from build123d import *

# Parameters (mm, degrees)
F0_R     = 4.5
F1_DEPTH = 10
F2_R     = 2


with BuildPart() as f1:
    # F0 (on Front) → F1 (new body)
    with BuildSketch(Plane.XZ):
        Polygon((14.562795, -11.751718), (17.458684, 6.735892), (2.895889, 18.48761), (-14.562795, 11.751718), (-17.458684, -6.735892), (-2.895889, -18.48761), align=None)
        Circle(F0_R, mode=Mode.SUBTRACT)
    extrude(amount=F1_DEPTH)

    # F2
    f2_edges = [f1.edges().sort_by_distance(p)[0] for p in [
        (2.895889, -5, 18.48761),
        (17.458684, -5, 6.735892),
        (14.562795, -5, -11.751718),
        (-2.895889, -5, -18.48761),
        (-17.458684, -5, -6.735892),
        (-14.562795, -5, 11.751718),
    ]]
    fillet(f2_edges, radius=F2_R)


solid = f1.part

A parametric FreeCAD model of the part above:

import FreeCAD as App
import Part
import Sketcher
from FreeCAD import Vector
Q = App.Units.Quantity


def edges_at(feature, points):
    """Names of the edges that pass closest to the given points."""
    edges = feature.Shape.Edges
    near = lambda p: min(range(len(edges)), key=lambda i: edges[i].distToShape(Part.Vertex(*p))[0])
    return sorted({f"Edge{near(p) + 1}" for p in points})

doc = App.newDocument("Part")
body = doc.addObject("PartDesign::Body", "Body")

sketch1 = body.newObject("Sketcher::SketchObject", "Sketch")
sketch1.AttachmentSupport = (doc.getObject("XZ_Plane"), [""])
sketch1.MapMode = "FlatFace"
sketch1.addGeometry(Part.LineSegment(Vector(14.6, -11.8, 0), Vector(17.5, 6.7, 0)), False)
sketch1.addGeometry(Part.LineSegment(Vector(17.5, 6.7, 0), Vector(2.9, 18.5, 0)), False)
sketch1.addGeometry(Part.LineSegment(Vector(2.9, 18.5, 0), Vector(-14.6, 11.8, 0)), False)
sketch1.addGeometry(Part.LineSegment(Vector(-14.6, 11.8, 0), Vector(-17.5, -6.7, 0)), False)
sketch1.addGeometry(Part.LineSegment(Vector(-17.5, -6.7, 0), Vector(-2.9, -18.5, 0)), False)
sketch1.addGeometry(Part.LineSegment(Vector(-2.9, -18.5, 0), Vector(14.6, -11.8, 0)), False)
sketch1.addGeometry(Part.Circle(Vector(0, 0, 0), Vector(0, 0, 1), 4.5), False)
sketch1.addConstraint(Sketcher.Constraint("Coincident", 0, 2, 1, 1))
sketch1.addConstraint(Sketcher.Constraint("Coincident", 1, 2, 2, 1))
sketch1.addConstraint(Sketcher.Constraint("Coincident", 2, 2, 3, 1))
sketch1.addConstraint(Sketcher.Constraint("Coincident", 3, 2, 4, 1))
sketch1.addConstraint(Sketcher.Constraint("Coincident", 4, 2, 5, 1))
sketch1.addConstraint(Sketcher.Constraint("Coincident", 5, 2, 0, 1))
sketch1.addConstraint(Sketcher.Constraint("Coincident", 6, 3, -1, 1))
sketch1.addConstraint(Sketcher.Constraint("Symmetric", 0, 2, 3, 2, -1, 1))
sketch1.addConstraint(Sketcher.Constraint("Symmetric", 1, 2, 4, 2, -1, 1))
sketch1.addConstraint(Sketcher.Constraint("Symmetric", 2, 2, 5, 2, -1, 1))
sketch1.addConstraint(Sketcher.Constraint("Equal", 0, 1))
sketch1.addConstraint(Sketcher.Constraint("Equal", 1, 2))
sketch1.addConstraint(Sketcher.Constraint("Diameter", 6, Q("9 mm")))
sketch1.addConstraint(Sketcher.Constraint("DistanceY", 3, 2, 1, 2, Q("25.223502 mm")))
sketch1.addConstraint(Sketcher.Constraint("Distance", 0, Q("18.713041 mm")))
sketch1.addConstraint(Sketcher.Constraint("DistanceY", -1, 1, 0, 2, Q("6.735892 mm")))
sketch1.addConstraint(Sketcher.Constraint("DistanceX", -1, 1, 1, 2, Q("2.895889 mm")))
pad1 = body.newObject("PartDesign::Pad", "Pad")
pad1.Profile = sketch1
pad1.Length = 10
doc.recompute()

fillet = body.newObject("PartDesign::Fillet", "Fillet")
fillet.Base = (pad1, edges_at(pad1, [
    (2.896, -5, 18.488),
    (17.459, -5, 6.736),
    (14.563, -5, -11.752),
    (-2.896, -5, -18.488),
    (-17.459, -5, -6.736),
    (-14.563, -5, 11.752),
]))
fillet.Radius = 2

doc.recompute()
